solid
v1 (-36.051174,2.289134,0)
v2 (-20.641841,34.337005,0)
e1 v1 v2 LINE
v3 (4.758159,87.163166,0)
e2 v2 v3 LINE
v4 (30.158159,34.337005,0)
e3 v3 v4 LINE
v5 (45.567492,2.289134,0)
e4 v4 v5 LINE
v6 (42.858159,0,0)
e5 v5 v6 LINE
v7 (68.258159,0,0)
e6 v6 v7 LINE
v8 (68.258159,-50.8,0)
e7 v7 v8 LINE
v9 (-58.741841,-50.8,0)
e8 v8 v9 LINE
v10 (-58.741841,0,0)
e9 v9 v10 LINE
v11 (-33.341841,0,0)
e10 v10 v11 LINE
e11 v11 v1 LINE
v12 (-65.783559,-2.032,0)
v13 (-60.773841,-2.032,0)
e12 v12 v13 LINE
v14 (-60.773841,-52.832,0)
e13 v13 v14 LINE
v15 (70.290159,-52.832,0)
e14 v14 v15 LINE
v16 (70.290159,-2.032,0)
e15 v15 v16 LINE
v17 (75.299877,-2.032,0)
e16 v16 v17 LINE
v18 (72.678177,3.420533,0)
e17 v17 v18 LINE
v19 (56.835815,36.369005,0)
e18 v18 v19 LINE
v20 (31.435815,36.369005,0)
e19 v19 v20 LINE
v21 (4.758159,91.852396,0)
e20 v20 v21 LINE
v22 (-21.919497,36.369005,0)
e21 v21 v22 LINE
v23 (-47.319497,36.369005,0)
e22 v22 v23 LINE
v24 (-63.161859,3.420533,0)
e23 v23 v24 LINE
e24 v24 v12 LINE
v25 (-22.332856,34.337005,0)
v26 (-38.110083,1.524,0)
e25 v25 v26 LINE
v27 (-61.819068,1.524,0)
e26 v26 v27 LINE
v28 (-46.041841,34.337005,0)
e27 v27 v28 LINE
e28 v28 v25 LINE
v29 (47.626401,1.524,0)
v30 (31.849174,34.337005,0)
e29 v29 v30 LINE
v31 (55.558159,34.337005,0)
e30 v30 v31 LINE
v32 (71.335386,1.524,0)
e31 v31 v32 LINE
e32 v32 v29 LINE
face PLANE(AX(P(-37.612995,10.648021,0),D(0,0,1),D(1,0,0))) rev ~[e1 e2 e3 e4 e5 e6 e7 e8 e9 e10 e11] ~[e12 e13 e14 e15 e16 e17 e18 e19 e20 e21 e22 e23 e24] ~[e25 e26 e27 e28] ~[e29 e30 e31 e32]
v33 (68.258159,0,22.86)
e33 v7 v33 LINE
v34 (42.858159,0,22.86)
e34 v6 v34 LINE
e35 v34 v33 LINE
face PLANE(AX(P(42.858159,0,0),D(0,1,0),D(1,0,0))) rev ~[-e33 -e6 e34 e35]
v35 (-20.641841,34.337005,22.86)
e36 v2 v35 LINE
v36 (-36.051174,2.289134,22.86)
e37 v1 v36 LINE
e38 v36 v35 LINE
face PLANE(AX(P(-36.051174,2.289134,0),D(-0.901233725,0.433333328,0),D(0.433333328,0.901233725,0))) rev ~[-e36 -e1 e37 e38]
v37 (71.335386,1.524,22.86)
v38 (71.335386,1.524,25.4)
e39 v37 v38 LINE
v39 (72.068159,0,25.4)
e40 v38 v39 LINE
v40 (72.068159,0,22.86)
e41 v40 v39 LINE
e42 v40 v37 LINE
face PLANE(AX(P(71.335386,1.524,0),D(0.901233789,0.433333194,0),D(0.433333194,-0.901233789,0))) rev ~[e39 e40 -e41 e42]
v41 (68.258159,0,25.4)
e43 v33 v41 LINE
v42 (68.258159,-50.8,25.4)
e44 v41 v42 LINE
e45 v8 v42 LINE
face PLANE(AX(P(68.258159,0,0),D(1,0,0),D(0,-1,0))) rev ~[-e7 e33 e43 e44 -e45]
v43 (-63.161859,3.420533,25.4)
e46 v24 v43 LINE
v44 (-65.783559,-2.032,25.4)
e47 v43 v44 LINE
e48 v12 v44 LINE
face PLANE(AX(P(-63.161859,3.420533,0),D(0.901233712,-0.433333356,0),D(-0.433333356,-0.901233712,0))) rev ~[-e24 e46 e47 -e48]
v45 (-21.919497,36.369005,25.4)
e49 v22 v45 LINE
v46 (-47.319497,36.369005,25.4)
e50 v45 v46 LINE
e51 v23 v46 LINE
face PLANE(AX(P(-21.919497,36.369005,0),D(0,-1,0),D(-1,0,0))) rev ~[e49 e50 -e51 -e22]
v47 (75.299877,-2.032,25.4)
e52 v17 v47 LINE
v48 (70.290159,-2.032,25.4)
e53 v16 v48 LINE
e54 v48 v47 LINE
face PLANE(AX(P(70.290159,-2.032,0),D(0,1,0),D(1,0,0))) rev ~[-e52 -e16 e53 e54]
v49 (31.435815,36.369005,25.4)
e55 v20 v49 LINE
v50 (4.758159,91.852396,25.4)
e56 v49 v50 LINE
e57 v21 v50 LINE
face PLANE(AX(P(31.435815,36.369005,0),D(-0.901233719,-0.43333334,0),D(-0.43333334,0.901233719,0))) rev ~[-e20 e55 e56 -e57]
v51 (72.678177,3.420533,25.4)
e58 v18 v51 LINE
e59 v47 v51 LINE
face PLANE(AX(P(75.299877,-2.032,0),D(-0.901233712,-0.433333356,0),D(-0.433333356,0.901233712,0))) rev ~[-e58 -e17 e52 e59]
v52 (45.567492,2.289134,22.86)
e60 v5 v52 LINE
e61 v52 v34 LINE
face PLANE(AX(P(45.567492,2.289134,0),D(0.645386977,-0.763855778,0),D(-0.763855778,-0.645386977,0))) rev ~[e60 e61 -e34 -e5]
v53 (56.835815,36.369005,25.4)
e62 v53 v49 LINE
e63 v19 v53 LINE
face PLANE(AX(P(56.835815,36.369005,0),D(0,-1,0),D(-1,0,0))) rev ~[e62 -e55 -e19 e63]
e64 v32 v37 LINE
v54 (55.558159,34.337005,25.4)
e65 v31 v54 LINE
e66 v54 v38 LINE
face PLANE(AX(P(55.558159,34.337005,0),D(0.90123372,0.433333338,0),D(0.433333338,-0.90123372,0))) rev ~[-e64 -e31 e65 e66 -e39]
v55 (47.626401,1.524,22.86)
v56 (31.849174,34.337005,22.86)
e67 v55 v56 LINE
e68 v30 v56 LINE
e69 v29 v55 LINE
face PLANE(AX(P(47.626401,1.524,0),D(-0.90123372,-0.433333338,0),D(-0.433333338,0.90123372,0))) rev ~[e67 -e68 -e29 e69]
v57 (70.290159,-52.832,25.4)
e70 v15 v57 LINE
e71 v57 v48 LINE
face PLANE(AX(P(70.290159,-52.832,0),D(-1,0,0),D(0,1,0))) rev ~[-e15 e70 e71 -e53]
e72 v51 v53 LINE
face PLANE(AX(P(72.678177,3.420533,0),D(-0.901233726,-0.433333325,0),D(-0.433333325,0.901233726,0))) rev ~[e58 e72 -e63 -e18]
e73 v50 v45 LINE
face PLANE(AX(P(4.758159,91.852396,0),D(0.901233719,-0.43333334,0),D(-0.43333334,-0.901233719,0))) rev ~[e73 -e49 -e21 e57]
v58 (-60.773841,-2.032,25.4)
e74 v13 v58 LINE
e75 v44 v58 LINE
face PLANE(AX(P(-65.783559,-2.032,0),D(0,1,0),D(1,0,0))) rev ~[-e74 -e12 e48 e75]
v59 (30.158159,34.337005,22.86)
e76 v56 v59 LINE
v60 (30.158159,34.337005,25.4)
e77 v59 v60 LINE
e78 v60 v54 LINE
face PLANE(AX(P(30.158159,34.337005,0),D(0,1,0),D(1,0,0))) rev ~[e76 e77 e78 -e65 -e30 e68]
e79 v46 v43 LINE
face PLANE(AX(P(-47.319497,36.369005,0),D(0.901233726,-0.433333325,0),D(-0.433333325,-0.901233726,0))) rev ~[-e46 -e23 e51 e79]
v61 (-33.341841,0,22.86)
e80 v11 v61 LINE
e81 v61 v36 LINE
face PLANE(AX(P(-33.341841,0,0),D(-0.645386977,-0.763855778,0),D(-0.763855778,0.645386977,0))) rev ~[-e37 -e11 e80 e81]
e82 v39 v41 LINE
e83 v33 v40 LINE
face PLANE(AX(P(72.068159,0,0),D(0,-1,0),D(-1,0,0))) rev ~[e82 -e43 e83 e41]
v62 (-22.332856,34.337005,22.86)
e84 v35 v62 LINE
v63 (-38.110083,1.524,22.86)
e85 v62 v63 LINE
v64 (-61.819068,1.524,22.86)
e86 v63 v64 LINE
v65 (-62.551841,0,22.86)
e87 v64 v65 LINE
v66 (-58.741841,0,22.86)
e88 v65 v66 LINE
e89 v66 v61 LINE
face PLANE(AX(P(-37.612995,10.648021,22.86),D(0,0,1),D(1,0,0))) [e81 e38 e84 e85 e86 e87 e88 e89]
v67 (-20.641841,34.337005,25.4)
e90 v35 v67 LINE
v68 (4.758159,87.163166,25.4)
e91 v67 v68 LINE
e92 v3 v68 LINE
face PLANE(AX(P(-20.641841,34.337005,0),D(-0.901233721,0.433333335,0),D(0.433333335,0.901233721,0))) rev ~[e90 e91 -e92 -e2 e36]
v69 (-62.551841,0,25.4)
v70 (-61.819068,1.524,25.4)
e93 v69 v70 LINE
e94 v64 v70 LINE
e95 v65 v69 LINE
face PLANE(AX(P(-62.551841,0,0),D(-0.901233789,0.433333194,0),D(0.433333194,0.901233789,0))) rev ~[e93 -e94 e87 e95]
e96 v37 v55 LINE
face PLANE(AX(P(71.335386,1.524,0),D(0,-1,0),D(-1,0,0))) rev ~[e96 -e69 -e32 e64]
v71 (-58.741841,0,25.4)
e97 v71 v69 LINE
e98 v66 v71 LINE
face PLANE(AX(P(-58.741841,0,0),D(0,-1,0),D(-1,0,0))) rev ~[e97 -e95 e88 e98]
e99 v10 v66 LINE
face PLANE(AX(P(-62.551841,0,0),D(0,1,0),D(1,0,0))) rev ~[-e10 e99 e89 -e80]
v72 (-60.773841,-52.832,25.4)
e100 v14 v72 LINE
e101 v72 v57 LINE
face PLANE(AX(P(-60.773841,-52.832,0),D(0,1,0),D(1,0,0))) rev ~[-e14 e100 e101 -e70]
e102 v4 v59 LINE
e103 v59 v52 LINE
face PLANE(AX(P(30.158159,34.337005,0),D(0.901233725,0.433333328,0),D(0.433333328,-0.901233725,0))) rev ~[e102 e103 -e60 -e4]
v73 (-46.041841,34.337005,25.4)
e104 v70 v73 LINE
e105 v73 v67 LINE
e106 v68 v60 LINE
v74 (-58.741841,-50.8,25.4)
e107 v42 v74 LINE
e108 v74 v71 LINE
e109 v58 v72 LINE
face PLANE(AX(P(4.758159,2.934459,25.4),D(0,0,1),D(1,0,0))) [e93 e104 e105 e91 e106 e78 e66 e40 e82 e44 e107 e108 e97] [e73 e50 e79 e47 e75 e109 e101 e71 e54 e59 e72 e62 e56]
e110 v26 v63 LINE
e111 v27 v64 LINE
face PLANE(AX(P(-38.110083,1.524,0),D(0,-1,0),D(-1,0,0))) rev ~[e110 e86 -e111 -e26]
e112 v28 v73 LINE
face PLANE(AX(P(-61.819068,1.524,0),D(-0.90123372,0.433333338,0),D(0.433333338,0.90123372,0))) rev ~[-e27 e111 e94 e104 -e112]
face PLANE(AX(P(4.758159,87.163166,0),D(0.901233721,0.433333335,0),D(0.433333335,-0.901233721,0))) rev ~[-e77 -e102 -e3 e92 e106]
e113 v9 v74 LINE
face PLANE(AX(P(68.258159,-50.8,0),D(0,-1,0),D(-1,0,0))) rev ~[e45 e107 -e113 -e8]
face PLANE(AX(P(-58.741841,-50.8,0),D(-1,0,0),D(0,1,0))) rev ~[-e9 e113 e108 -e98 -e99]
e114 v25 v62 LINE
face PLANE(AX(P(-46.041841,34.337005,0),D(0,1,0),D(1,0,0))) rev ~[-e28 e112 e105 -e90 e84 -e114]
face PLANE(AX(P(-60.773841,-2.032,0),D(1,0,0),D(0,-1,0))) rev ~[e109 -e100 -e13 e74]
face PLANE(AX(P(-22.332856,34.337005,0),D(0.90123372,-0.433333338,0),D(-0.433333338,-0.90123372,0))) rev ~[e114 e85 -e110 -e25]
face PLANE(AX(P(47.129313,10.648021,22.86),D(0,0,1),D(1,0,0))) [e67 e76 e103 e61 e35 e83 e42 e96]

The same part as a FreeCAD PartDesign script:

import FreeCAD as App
import Part
import Sketcher
Q = App.Units.Quantity

doc = App.newDocument("Part")
params = doc.addObject("Spreadsheet::Sheet", "Params")
for row, (alias, value) in enumerate([
    ("sketch1_width", "1 in"),
    ("sketch1_width2", "5 in"),
    ("sketch1_height", "2 in"),
    ("sketch1_width3", "5.16 in"),
    ("sketch1_width4", "0.15 in"),
    ("pad1_length", "1 in"),
    ("sketch2_length", "1.4 in"),
    ("sketch2_width", "1.15 in"),
    ("pad2_length", "0.9 in"),
], start=1):
    params.set(f"A{row}", alias)
    params.set(f"B{row}", "=" + value)
    params.setAlias(f"B{row}", alias)

body = doc.addObject("PartDesign::Body", "Body")

sketch1 = doc.addObject("Sketcher::SketchObject", "Sketch")
body.addObject(sketch1)
sketch1.AttachmentSupport = (doc.XY_Plane, [""])
sketch1.MapMode = "FlatFace"
sketch1.addGeometry([
    Part.LineSegment(App.Vector(56.835815, 36.369005, 0), App.Vector(31.435815, 36.369005, 0)),
    Part.LineSegment(App.Vector(31.435815, 36.369005, 0), App.Vector(4.758159, 91.852396, 0)),
    Part.LineSegment(App.Vector(4.758159, 91.852396, 0), App.Vector(-21.919497, 36.369005, 0)),
    Part.LineSegment(App.Vector(-21.919497, 36.369005, 0), App.Vector(-47.319497, 36.369005, 0)),
    Part.LineSegment(App.Vector(-47.319497, 36.369005, 0), App.Vector(-63.161859, 3.420533, 0)),
    Part.LineSegment(App.Vector(-63.161859, 3.420533, 0), App.Vector(-65.783559, -2.032, 0)),
    Part.LineSegment(App.Vector(-65.783559, -2.032, 0), App.Vector(-60.773841, -2.032, 0)),
    Part.LineSegment(App.Vector(-60.773841, -2.032, 0), App.Vector(-60.773841, -52.832, 0)),
    Part.LineSegment(App.Vector(-60.773841, -52.832, 0), App.Vector(70.290159, -52.832, 0)),
    Part.LineSegment(App.Vector(70.290159, -52.832, 0), App.Vector(70.290159, -2.032, 0)),
    Part.LineSegment(App.Vector(70.290159, -2.032, 0), App.Vector(75.299877, -2.032, 0)),
    Part.LineSegment(App.Vector(75.299877, -2.032, 0), App.Vector(72.678177, 3.420533, 0)),
    Part.LineSegment(App.Vector(72.678177, 3.420533, 0), App.Vector(56.835815, 36.369005, 0)),
    Part.LineSegment(App.Vector(68.258159, 0, 0), App.Vector(68.258159, -50.8, 0)),
    Part.LineSegment(App.Vector(68.258159, -50.8, 0), App.Vector(-58.741841, -50.8, 0)),
    Part.LineSegment(App.Vector(-58.741841, -50.8, 0), App.Vector(-58.741841, 0, 0)),
    Part.LineSegment(App.Vector(-58.741841, 0, 0), App.Vector(-62.551841, 0, 0)),
    Part.LineSegment(App.Vector(-62.551841, 0, 0), App.Vector(-61.819068, 1.524, 0)),
    Part.LineSegment(App.Vector(-61.819068, 1.524, 0), App.Vector(-46.041841, 34.337005, 0)),
    Part.LineSegment(App.Vector(-46.041841, 34.337005, 0), App.Vector(-20.641841, 34.337005, 0)),
    Part.LineSegment(App.Vector(-20.641841, 34.337005, 0), App.Vector(4.758159, 87.163166, 0)),
    Part.LineSegment(App.Vector(4.758159, 87.163166, 0), App.Vector(30.158159, 34.337005, 0)),
    Part.LineSegment(App.Vector(30.158159, 34.337005, 0), App.Vector(55.558159, 34.337005, 0)),
    Part.LineSegment(App.Vector(55.558159, 34.337005, 0), App.Vector(71.335386, 1.524, 0)),
    Part.LineSegment(App.Vector(71.335386, 1.524, 0), App.Vector(72.068159, 0, 0)),
    Part.LineSegment(App.Vector(72.068159, 0, 0), App.Vector(68.258159, 0, 0)),
], False)
sketch1.addConstraint([
    Sketcher.Constraint("Coincident", 0, 2, 1, 1),
    Sketcher.Constraint("Coincident", 1, 2, 2, 1),
    Sketcher.Constraint("Coincident", 2, 2, 3, 1),
    Sketcher.Constraint("Coincident", 3, 2, 4, 1),
    Sketcher.Constraint("Coincident", 4, 2, 5, 1),
    Sketcher.Constraint("Coincident", 5, 2, 6, 1),
    Sketcher.Constraint("Coincident", 6, 2, 7, 1),
    Sketcher.Constraint("Coincident", 7, 2, 8, 1),
    Sketcher.Constraint("Coincident", 8, 2, 9, 1),
    Sketcher.Constraint("Coincident", 9, 2, 10, 1),
    Sketcher.Constraint("Coincident", 10, 2, 11, 1),
    Sketcher.Constraint("Coincident", 11, 2, 12, 1),
    Sketcher.Constraint("Coincident", 12, 2, 0, 1),
    Sketcher.Constraint("Coincident", 13, 2, 14, 1),
    Sketcher.Constraint("Coincident", 14, 2, 15, 1),
    Sketcher.Constraint("Coincident", 15, 2, 16, 1),
    Sketcher.Constraint("Coincident", 16, 2, 17, 1),
    Sketcher.Constraint("Coincident", 17, 2, 18, 1),
    Sketcher.Constraint("Coincident", 18, 2, 19, 1),
    Sketcher.Constraint("Coincident", 19, 2, 20, 1),
    Sketcher.Constraint("Coincident", 20, 2, 21, 1),
    Sketcher.Constraint("Coincident", 21, 2, 22, 1),
    Sketcher.Constraint("Coincident", 22, 2, 23, 1),
    Sketcher.Constraint("Coincident", 23, 2, 24, 1),
    Sketcher.Constraint("Coincident", 24, 2, 25, 1),
    Sketcher.Constraint("Coincident", 25, 2, 13, 1),
    Sketcher.Constraint("Horizontal", 0),
    Sketcher.Constraint("Horizontal", 3),
    Sketcher.Constraint("Horizontal", 6),
    Sketcher.Constraint("Vertical", 7),
    Sketcher.Constraint("Horizontal", 8),
    Sketcher.Constraint("Vertical", 9),
    Sketcher.Constraint("Horizontal", 10),
    Sketcher.Constraint("Vertical", 13),
    Sketcher.Constraint("Horizontal", 14),
    Sketcher.Constraint("Vertical", 15),
    Sketcher.Constraint("Horizontal", 16),
    Sketcher.Constraint("Horizontal", 19),
    Sketcher.Constraint("Horizontal", 22),
    Sketcher.Constraint("Horizontal", 25),
    Sketcher.Constraint("PointOnObject", 15, 2, -1),
    Sketcher.Constraint("PointOnObject", 24, 2, -1),
    Sketcher.Constraint("Parallel", 2, 4),
    Sketcher.Constraint("Parallel", 4, 5),
    Sketcher.Constraint("Parallel", 1, 11),
    Sketcher.Constraint("Parallel", 11, 12),
    Sketcher.Constraint("Parallel", 5, 17),
    Sketcher.Constraint("Parallel", 17, 18),
    Sketcher.Constraint("Parallel", 18, 20),
    Sketcher.Constraint("Parallel", 12, 21),
    Sketcher.Constraint("Parallel", 21, 23),
    Sketcher.Constraint("Parallel", 23, 24),
    Sketcher.Constraint("Horizontal", 0, 2, 2, 2),
    Sketcher.Constraint("Horizontal", 6, 2, 9, 2),
    Sketcher.Constraint("Horizontal", 4, 2, 11, 2),
    Sketcher.Constraint("Horizontal", 19, 2, 21, 2),
    Sketcher.Constraint("Horizontal", 17, 2, 23, 2),
    Sketcher.Constraint("Vertical", 1, 2, 20, 2),
    Sketcher.Constraint("Equal", 0, 3),
    Sketcher.Constraint("Equal", 6, 10),
    Sketcher.Constraint("Equal", 3, 19),
    Sketcher.Constraint("Equal", 19, 22),
    Sketcher.Constraint("Equal", 16, 25),
    Sketcher.Constraint("Equal", 9, 13),
    Sketcher.Constraint("Equal", 1, 2),
    Sketcher.Constraint("DistanceX", 0, 2, 0, 1, Q("1 in")),
    Sketcher.Constraint("DistanceX", 14, 2, 14, 1, Q("5 in")),
    Sketcher.Constraint("DistanceY", 7, 2, 7, 1, Q("2 in")),
    Sketcher.Constraint("DistanceX", 19, 2, 20, 2, Q("1 in")),
    Sketcher.Constraint("DistanceX", 8, 1, 8, 2, Q("5.16 in")),
    Sketcher.Constraint("DistanceX", 16, 2, 16, 1, Q("0.15 in")),
    Sketcher.Constraint("DistanceY", 5, 2, -1, 1, Q("0.08 in")),
    Sketcher.Constraint("DistanceY", -1, 1, 17, 2, Q("0.06 in")),
    Sketcher.Constraint("DistanceY", 18, 2, 3, 2, Q("0.08 in")),
    Sketcher.Constraint("DistanceX", 5, 2, 4, 2, 2.6217),
    Sketcher.Constraint("Distance", 1, 61.563821),
    Sketcher.Constraint("DistanceX", 6, 1, 6, 2, 5.009718),
    Sketcher.Constraint("DistanceX", -1, 1, 1, 2, 4.758159),
])
sketch1.setExpression("Constraints[65]", "Params.sketch1_width")
sketch1.setExpression("Constraints[66]", "Params.sketch1_width2")
sketch1.setExpression("Constraints[67]", "Params.sketch1_height")
sketch1.setExpression("Constraints[69]", "Params.sketch1_width3")
sketch1.setExpression("Constraints[70]", "Params.sketch1_width4")
pad1 = doc.addObject("PartDesign::Pad", "Pad")
body.addObject(pad1)
pad1.Profile = sketch1
pad1.setExpression("Length", "Params.pad1_length")

sketch2 = doc.addObject("Sketcher::SketchObject", "Sketch001")
body.addObject(sketch2)
sketch2.AttachmentSupport = (doc.XY_Plane, [""])
sketch2.MapMode = "FlatFace"
sketch2.addGeometry([
    Part.LineSegment(App.Vector(-62.551841, 0, 0), App.Vector(-33.341841, 0, 0)),
    Part.LineSegment(App.Vector(-33.341841, 0, 0), App.Vector(-36.051174, 2.289134, 0)),
    Part.LineSegment(App.Vector(-36.051174, 2.289134, 0), App.Vector(-20.641841, 34.337005, 0)),
    Part.LineSegment(App.Vector(-20.641841, 34.337005, 0), App.Vector(-22.332856, 34.337005, 0)),
    Part.LineSegment(App.Vector(-22.332856, 34.337005, 0), App.Vector(-38.110083, 1.524, 0)),
    Part.LineSegment(App.Vector(-38.110083, 1.524, 0), App.Vector(-61.819068, 1.524, 0)),
    Part.LineSegment(App.Vector(-61.819068, 1.524, 0), App.Vector(-62.551841, 0, 0)),
    Part.LineSegment(App.Vector(42.858159, 0, 0), App.Vector(72.068159, 0, 0)),
    Part.LineSegment(App.Vector(72.068159, 0, 0), App.Vector(71.335386, 1.524, 0)),
    Part.LineSegment(App.Vector(71.335386, 1.524, 0), App.Vector(47.626401, 1.524, 0)),
    Part.LineSegment(App.Vector(47.626401, 1.524, 0), App.Vector(31.849174, 34.337005, 0)),
    Part.LineSegment(App.Vector(31.849174, 34.337005, 0), App.Vector(30.158159, 34.337005, 0)),
    Part.LineSegment(App.Vector(30.158159, 34.337005, 0), App.Vector(45.567492, 2.289134, 0)),
    Part.LineSegment(App.Vector(45.567492, 2.289134, 0), App.Vector(42.858159, 0, 0)),
], False)
sketch2.addConstraint([
    Sketcher.Constraint("Coincident", 0, 2, 1, 1),
    Sketcher.Constraint("Coincident", 1, 2, 2, 1),
    Sketcher.Constraint("Coincident", 2, 2, 3, 1),
    Sketcher.Constraint("Coincident", 3, 2, 4, 1),
    Sketcher.Constraint("Coincident", 4, 2, 5, 1),
    Sketcher.Constraint("Coincident", 5, 2, 6, 1),
    Sketcher.Constraint("Coincident", 6, 2, 0, 1),
    Sketcher.Constraint("Coincident", 7, 2, 8, 1),
    Sketcher.Constraint("Coincident", 8, 2, 9, 1),
    Sketcher.Constraint("Coincident", 9, 2, 10, 1),
    Sketcher.Constraint("Coincident", 10, 2, 11, 1),
    Sketcher.Constraint("Coincident", 11, 2, 12, 1),
    Sketcher.Constraint("Coincident", 12, 2, 13, 1),
    Sketcher.Constraint("Coincident", 13, 2, 7, 1),
    Sketcher.Constraint("Horizontal", 0),
    Sketcher.Constraint("Horizontal", 3),
    Sketcher.Constraint("Horizontal", 5),
    Sketcher.Constraint("Horizontal", 7),
    Sketcher.Constraint("Horizontal", 9),
    Sketcher.Constraint("Horizontal", 11),
    Sketcher.Constraint("PointOnObject", 0, 2, -1),
    Sketcher.Constraint("PointOnObject", 7, 2, -1),
    Sketcher.Constraint("Parallel", 2, 4),
    Sketcher.Constraint("Parallel", 4, 6),
    Sketcher.Constraint("Parallel", 8, 10),
    Sketcher.Constraint("Parallel", 10, 12),
    Sketcher.Constraint("Horizontal", 5, 2, 8, 2),
    Sketcher.Constraint("Horizontal", 3, 2, 10, 2),
    Sketcher.Constraint("Horizontal", 1, 2, 12, 2),
    Sketcher.Constraint("Equal", 0, 7),
    Sketcher.Constraint("Equal", 5, 9),
    Sketcher.Constraint("Equal", 3, 11),
    Sketcher.Constraint("Equal", 6, 8),
    Sketcher.Constraint("DistanceX", 2, 2, 11, 2, Q("2 in")),
    Sketcher.Constraint("Distance", 2, Q("1.4 in")),
    Sketcher.Constraint("DistanceX", 0, 1, 0, 2, Q("1.15 in")),
    Sketcher.Constraint("DistanceX", 0, 2, 2, 2, Q("0.5 in")),
    Sketcher.Constraint("DistanceY", -1, 1, 4, 2, Q("0.06 in")),
    Sketcher.Constraint("DistanceX", -1, 1, 9, 2, 47.626401),
    Sketcher.Constraint("DistanceX", 3, 2, 3, 1, 1.691015),
    Sketcher.Constraint("DistanceX", 5, 2, 5, 1, 23.708985),
    Sketcher.Constraint("DistanceX", 0, 2, -1, 1, 33.341841),
])
sketch2.setExpression("Constraints[34]", "Params.sketch2_length")
sketch2.setExpression("Constraints[35]", "Params.sketch2_width")
pad2 = doc.addObject("PartDesign::Pad", "Pad001")
body.addObject(pad2)
pad2.Profile = sketch2
pad2.setExpression("Length", "Params.pad2_length")

doc.recompute()
